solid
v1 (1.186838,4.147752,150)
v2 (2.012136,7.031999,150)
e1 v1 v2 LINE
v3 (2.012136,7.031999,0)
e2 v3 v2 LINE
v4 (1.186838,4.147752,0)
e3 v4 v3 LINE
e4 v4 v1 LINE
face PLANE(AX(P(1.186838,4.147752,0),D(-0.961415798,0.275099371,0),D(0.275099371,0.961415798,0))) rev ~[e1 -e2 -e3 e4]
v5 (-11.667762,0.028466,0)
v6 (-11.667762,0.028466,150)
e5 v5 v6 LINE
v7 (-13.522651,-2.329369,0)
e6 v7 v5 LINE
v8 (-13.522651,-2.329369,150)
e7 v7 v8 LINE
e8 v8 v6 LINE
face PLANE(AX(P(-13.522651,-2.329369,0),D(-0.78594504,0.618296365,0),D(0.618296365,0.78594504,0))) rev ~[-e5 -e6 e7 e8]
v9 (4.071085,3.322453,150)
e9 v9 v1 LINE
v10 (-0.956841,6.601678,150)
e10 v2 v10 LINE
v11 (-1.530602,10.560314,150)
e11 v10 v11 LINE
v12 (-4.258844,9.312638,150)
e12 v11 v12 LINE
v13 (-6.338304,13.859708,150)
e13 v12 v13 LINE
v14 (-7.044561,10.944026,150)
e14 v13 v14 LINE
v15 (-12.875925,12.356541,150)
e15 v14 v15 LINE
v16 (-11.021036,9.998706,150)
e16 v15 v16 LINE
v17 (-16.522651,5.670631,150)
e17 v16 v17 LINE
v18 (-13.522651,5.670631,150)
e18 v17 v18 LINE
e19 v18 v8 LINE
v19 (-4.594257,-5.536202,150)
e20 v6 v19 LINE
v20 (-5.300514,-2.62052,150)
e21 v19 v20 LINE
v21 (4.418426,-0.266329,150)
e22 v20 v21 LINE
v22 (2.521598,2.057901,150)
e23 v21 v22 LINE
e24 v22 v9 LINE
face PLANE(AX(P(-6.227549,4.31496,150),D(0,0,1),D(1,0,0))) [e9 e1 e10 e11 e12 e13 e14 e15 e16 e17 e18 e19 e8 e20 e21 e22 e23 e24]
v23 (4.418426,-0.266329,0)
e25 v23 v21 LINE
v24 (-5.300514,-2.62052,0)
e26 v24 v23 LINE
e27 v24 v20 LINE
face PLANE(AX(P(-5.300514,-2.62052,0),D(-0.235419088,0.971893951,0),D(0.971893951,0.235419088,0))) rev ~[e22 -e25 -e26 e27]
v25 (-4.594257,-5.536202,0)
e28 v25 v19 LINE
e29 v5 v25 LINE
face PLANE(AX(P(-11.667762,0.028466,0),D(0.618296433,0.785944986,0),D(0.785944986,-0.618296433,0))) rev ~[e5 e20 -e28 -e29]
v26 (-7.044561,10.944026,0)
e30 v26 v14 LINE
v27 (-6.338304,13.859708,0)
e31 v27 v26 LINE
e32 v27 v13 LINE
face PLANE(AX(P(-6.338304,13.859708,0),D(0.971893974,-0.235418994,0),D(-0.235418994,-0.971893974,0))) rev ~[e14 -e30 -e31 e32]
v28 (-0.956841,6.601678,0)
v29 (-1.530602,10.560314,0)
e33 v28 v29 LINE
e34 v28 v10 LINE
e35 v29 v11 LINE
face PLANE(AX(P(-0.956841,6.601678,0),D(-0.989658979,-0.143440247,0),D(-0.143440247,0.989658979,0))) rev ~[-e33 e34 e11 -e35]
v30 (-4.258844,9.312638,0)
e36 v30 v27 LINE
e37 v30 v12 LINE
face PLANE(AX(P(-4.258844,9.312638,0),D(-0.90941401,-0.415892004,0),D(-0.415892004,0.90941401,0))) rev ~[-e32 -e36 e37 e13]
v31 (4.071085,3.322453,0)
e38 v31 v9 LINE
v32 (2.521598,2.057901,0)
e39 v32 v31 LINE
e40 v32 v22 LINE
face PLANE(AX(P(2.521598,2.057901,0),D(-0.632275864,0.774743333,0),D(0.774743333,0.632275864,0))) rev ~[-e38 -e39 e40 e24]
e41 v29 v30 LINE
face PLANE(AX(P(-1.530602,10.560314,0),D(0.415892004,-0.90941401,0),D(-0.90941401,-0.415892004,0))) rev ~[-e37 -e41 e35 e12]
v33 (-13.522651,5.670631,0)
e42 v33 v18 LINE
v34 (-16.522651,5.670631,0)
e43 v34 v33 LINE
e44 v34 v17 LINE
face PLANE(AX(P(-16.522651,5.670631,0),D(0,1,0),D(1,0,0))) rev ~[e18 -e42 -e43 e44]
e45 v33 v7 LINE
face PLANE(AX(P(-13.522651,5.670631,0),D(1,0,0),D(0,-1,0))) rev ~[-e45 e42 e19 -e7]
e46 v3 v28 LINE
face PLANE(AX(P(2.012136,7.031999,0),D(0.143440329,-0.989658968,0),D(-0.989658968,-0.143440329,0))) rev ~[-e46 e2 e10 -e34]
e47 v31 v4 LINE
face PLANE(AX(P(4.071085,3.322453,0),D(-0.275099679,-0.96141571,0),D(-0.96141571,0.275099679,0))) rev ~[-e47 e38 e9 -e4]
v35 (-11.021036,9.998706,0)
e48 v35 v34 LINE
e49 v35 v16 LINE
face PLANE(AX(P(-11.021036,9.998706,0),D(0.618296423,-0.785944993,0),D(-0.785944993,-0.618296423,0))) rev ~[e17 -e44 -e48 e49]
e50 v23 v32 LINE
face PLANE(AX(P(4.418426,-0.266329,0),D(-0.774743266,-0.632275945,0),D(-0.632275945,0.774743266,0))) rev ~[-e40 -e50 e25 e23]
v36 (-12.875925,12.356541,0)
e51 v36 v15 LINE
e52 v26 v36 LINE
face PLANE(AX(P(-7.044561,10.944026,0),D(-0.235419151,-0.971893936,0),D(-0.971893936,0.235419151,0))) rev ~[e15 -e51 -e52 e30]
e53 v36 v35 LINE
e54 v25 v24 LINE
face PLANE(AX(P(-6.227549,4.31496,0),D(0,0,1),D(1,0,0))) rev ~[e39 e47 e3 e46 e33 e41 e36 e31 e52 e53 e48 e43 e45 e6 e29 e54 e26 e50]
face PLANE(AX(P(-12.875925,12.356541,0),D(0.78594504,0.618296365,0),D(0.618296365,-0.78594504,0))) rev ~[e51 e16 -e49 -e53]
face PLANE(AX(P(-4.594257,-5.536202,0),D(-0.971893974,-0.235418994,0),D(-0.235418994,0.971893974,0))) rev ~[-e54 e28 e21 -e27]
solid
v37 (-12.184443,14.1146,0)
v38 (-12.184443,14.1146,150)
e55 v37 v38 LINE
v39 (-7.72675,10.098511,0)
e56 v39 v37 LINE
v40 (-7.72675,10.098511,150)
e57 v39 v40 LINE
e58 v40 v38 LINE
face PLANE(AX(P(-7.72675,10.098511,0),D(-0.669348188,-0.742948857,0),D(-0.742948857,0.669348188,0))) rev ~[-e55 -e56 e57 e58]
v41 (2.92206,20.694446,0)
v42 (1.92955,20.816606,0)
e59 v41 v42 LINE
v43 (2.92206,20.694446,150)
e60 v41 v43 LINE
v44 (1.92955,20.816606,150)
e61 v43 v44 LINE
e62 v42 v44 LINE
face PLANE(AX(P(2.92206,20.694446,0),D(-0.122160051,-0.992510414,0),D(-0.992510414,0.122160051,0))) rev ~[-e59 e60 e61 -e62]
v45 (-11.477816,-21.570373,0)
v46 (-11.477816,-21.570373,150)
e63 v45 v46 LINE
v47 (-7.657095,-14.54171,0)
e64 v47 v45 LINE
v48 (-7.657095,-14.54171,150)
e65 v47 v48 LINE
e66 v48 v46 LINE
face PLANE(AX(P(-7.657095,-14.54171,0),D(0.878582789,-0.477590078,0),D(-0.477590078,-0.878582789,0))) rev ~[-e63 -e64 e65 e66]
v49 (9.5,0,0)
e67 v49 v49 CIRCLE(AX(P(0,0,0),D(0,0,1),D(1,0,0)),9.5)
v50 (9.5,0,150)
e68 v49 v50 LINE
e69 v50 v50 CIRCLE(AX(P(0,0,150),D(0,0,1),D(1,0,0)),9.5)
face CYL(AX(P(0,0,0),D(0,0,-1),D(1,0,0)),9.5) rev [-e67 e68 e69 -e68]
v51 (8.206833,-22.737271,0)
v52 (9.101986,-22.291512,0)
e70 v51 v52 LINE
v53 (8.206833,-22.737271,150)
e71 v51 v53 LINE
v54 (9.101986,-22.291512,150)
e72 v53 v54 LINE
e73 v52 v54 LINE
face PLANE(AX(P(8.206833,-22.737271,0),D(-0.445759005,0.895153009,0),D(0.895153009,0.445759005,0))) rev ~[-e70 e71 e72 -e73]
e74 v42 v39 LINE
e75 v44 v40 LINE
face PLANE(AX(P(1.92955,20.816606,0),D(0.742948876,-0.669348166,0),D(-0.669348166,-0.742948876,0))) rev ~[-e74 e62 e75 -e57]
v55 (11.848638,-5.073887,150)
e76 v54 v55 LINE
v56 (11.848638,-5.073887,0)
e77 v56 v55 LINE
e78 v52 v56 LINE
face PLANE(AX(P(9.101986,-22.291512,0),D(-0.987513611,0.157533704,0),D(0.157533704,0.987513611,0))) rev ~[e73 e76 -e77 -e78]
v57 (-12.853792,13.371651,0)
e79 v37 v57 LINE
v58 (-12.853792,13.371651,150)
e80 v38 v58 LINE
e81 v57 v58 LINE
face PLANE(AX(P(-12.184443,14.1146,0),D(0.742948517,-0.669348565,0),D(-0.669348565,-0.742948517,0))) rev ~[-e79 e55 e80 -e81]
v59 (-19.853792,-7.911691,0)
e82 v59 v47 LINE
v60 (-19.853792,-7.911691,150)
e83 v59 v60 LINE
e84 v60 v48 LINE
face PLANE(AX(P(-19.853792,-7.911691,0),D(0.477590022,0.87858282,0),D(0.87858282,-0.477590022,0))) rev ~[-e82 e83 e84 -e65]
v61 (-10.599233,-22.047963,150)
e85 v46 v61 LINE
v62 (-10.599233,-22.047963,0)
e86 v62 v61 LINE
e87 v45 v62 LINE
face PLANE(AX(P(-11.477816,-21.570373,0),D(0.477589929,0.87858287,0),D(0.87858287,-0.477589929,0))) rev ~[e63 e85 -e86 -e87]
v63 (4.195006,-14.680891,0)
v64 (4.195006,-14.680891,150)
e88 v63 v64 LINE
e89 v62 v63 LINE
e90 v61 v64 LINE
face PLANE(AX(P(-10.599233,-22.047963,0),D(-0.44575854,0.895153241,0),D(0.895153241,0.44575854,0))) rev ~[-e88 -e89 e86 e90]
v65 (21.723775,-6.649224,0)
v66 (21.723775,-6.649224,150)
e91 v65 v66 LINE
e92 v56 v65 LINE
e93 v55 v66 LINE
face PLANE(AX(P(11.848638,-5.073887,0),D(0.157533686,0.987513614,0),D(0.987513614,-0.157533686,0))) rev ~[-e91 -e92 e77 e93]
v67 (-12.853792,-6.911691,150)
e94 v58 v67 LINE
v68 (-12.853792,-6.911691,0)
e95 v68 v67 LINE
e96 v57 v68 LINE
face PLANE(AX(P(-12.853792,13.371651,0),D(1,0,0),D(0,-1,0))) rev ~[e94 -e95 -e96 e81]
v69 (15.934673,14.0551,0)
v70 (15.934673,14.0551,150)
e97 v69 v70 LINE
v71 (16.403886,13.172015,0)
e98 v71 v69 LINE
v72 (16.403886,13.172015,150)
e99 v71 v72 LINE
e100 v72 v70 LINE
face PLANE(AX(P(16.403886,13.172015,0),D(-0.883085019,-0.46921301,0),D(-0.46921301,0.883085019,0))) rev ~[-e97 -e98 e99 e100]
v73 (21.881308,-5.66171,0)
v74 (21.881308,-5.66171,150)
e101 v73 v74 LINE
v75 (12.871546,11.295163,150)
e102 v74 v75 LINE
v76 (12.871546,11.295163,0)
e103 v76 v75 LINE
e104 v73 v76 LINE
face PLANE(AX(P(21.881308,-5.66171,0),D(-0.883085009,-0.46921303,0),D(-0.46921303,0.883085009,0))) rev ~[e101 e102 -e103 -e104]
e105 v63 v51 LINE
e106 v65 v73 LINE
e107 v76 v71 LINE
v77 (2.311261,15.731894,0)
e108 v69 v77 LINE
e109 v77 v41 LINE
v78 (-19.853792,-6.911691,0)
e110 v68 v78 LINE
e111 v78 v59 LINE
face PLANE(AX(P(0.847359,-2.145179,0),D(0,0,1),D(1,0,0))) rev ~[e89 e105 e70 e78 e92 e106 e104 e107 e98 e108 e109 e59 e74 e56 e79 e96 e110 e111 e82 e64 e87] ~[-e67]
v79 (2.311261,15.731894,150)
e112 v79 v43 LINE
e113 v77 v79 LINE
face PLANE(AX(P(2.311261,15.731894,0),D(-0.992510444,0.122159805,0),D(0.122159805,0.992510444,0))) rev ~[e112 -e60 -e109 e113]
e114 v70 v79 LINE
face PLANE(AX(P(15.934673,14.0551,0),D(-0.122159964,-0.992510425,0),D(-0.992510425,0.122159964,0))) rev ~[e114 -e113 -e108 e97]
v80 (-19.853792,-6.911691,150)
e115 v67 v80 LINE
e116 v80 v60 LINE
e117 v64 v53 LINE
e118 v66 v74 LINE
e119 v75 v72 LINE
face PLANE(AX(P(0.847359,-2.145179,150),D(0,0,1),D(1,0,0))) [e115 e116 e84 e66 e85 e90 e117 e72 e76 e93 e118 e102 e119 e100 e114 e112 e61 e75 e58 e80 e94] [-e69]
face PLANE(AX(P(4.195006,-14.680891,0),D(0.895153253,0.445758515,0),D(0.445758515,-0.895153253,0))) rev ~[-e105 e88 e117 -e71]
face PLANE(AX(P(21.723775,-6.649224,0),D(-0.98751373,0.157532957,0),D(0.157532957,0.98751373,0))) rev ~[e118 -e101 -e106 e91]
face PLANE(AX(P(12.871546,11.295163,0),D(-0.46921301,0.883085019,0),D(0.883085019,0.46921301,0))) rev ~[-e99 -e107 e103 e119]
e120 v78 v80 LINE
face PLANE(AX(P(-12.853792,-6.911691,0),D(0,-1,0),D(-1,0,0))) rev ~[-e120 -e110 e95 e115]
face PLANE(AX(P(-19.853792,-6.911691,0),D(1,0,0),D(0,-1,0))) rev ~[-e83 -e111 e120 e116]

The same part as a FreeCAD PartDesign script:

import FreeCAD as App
import Part
import Sketcher
from FreeCAD import Vector
Q = App.Units.Quantity

doc = App.newDocument("Part")
params = doc.addObject("Spreadsheet::Sheet", "Params")
for row, (alias, value) in enumerate([
    ("sketch1_width", "3 mm"),
    ("sketch1_height", "8 mm"),
    ("sketch1_length", "2 mm"),
    ("sketch1_length2", "3 mm"),
    ("sketch1_length3", "4 mm"),
    ("pad1_length", "150 mm"),
    ("sketch2_diameter", "19 mm"),
    ("sketch2_width", "7 mm"),
    ("sketch2_height", "1 mm"),
    ("sketch2_length", "4 mm"),
    ("sketch2_length2", "1 mm"),
    ("pad2_length", "150 mm"),
], start=1):
    params.set(f"A{row}", alias)
    params.set(f"B{row}", "=" + value)
    params.setAlias(f"B{row}", alias)

body = doc.addObject("PartDesign::Body", "Body")

sketch1 = body.newObject("Sketcher::SketchObject", "Sketch")
sketch1.AttachmentSupport = (doc.getObject("XY_Plane"), [""])
sketch1.MapMode = "FlatFace"
sketch1.addGeometry([
    Part.LineSegment(Vector(2.521598, 2.057901, 0), Vector(4.071085, 3.322453, 0)),
    Part.LineSegment(Vector(4.071085, 3.322453, 0), Vector(1.186838, 4.147752, 0)),
    Part.LineSegment(Vector(1.186838, 4.147752, 0), Vector(2.012136, 7.031999, 0)),
    Part.LineSegment(Vector(2.012136, 7.031999, 0), Vector(-0.956841, 6.601678, 0)),
    Part.LineSegment(Vector(-0.956841, 6.601678, 0), Vector(-1.530602, 10.560314, 0)),
    Part.LineSegment(Vector(-1.530602, 10.560314, 0), Vector(-4.258844, 9.312638, 0)),
    Part.LineSegment(Vector(-4.258844, 9.312638, 0), Vector(-6.338304, 13.859708, 0)),
    Part.LineSegment(Vector(-6.338304, 13.859708, 0), Vector(-7.044561, 10.944026, 0)),
    Part.LineSegment(Vector(-7.044561, 10.944026, 0), Vector(-12.875925, 12.356541, 0)),
    Part.LineSegment(Vector(-12.875925, 12.356541, 0), Vector(-11.021036, 9.998706, 0)),
    Part.LineSegment(Vector(-11.021036, 9.998706, 0), Vector(-16.522651, 5.670631, 0)),
    Part.LineSegment(Vector(-16.522651, 5.670631, 0), Vector(-13.522651, 5.670631, 0)),
    Part.LineSegment(Vector(-13.522651, 5.670631, 0), Vector(-13.522651, -2.329369, 0)),
    Part.LineSegment(Vector(-13.522651, -2.329369, 0), Vector(-11.667762, 0.028466, 0)),
    Part.LineSegment(Vector(-11.667762, 0.028466, 0), Vector(-4.594257, -5.536202, 0)),
    Part.LineSegment(Vector(-4.594257, -5.536202, 0), Vector(-5.300514, -2.62052, 0)),
    Part.LineSegment(Vector(-5.300514, -2.62052, 0), Vector(4.418426, -0.266329, 0)),
    Part.LineSegment(Vector(4.418426, -0.266329, 0), Vector(2.521598, 2.057901, 0)),
], False)
sketch1.addConstraint([
    Sketcher.Constraint("Coincident", 0, 2, 1, 1),
    Sketcher.Constraint("Coincident", 1, 2, 2, 1),
    Sketcher.Constraint("Coincident", 2, 2, 3, 1),
    Sketcher.Constraint("Coincident", 3, 2, 4, 1),
    Sketcher.Constraint("Coincident", 4, 2, 5, 1),
    Sketcher.Constraint("Coincident", 5, 2, 6, 1),
    Sketcher.Constraint("Coincident", 6, 2, 7, 1),
    Sketcher.Constraint("Coincident", 7, 2, 8, 1),
    Sketcher.Constraint("Coincident", 8, 2, 9, 1),
    Sketcher.Constraint("Coincident", 9, 2, 10, 1),
    Sketcher.Constraint("Coincident", 10, 2, 11, 1),
    Sketcher.Constraint("Coincident", 11, 2, 12, 1),
    Sketcher.Constraint("Coincident", 12, 2, 13, 1),
    Sketcher.Constraint("Coincident", 13, 2, 14, 1),
    Sketcher.Constraint("Coincident", 14, 2, 15, 1),
    Sketcher.Constraint("Coincident", 15, 2, 16, 1),
    Sketcher.Constraint("Coincident", 16, 2, 17, 1),
    Sketcher.Constraint("Coincident", 17, 2, 0, 1),
    Sketcher.Constraint("Horizontal", 11),
    Sketcher.Constraint("Vertical", 12),
    Sketcher.Constraint("Perpendicular", 1, 2),
    Sketcher.Constraint("Perpendicular", 3, 4),
    Sketcher.Constraint("Perpendicular", 5, 6),
    Sketcher.Constraint("Perpendicular", 7, 8),
    Sketcher.Constraint("Perpendicular", 9, 10),
    Sketcher.Constraint("Perpendicular", 13, 14),
    Sketcher.Constraint("Perpendicular", 15, 16),
    Sketcher.Constraint("Perpendicular", 0, 17),
    Sketcher.Constraint("Equal", 1, 2),
    Sketcher.Constraint("Equal", 2, 3),
    Sketcher.Constraint("Equal", 3, 5),
    Sketcher.Constraint("Equal", 5, 7),
    Sketcher.Constraint("Equal", 7, 9),
    Sketcher.Constraint("Equal", 9, 13),
    Sketcher.Constraint("Equal", 13, 15),
    Sketcher.Constraint("Equal", 15, 17),
    Sketcher.Constraint("DistanceX", 11, 1, 11, 2, Q("3 mm")),
    Sketcher.Constraint("DistanceY", 12, 2, 12, 1, Q("8 mm")),
    Sketcher.Constraint("Distance", 0, Q("2 mm")),
    Sketcher.Constraint("Distance", 1, Q("3 mm")),
    Sketcher.Constraint("Distance", 4, Q("4 mm")),
    Sketcher.Constraint("Distance", 6, Q("5 mm")),
    Sketcher.Constraint("Distance", 8, Q("6 mm")),
    Sketcher.Constraint("Distance", 10, Q("7 mm")),
    Sketcher.Constraint("Distance", 14, Q("9 mm")),
    Sketcher.Constraint("Distance", 16, Q("10 mm")),
    Sketcher.Constraint("DistanceY", -1, 1, 2, 2, Q("7.031999 mm")),
    Sketcher.Constraint("DistanceY", 9, 2, 6, 2, Q("3.861002 mm")),
    Sketcher.Constraint("DistanceX", -1, 1, 17, 2, Q("2.521598 mm")),
    Sketcher.Constraint("DistanceY", -1, 1, 17, 2, Q("2.057901 mm")),
    Sketcher.Constraint("DistanceY", 0, 2, 1, 2, Q("0.825299 mm")),
    Sketcher.Constraint("DistanceX", 13, 2, 7, 2, Q("4.623201 mm")),
    Sketcher.Constraint("DistanceX", 3, 2, -1, 1, Q("0.956841 mm")),
    Sketcher.Constraint("DistanceX", 7, 2, -1, 1, Q("7.044561 mm")),
])
sketch1.setExpression("Constraints[36]", "Params.sketch1_width")
sketch1.setExpression("Constraints[37]", "Params.sketch1_height")
sketch1.setExpression("Constraints[38]", "Params.sketch1_length")
sketch1.setExpression("Constraints[39]", "Params.sketch1_length2")
sketch1.setExpression("Constraints[40]", "Params.sketch1_length3")
pad1 = body.newObject("PartDesign::Pad", "Pad")
pad1.Profile = sketch1
pad1.setExpression("Length", "Params.pad1_length")
body2 = doc.addObject("PartDesign::Body", "Body001")

sketch2 = body2.newObject("Sketcher::SketchObject", "Sketch001")
sketch2.AttachmentSupport = (doc.getObject("XY_Plane001"), [""])
sketch2.MapMode = "FlatFace"
sketch2.addGeometry([
    Part.LineSegment(Vector(12.871546, 11.295163, 0), Vector(16.403886, 13.172015, 0)),
    Part.LineSegment(Vector(16.403886, 13.172015, 0), Vector(15.934673, 14.0551, 0)),
    Part.LineSegment(Vector(15.934673, 14.0551, 0), Vector(2.311261, 15.731894, 0)),
    Part.LineSegment(Vector(2.311261, 15.731894, 0), Vector(2.92206, 20.694446, 0)),
    Part.LineSegment(Vector(2.92206, 20.694446, 0), Vector(1.92955, 20.816606, 0)),
    Part.LineSegment(Vector(1.92955, 20.816606, 0), Vector(-7.72675, 10.098511, 0)),
    Part.LineSegment(Vector(-7.72675, 10.098511, 0), Vector(-12.184443, 14.1146, 0)),
    Part.LineSegment(Vector(-12.184443, 14.1146, 0), Vector(-12.853792, 13.371651, 0)),
    Part.LineSegment(Vector(-12.853792, 13.371651, 0), Vector(-12.853792, -6.911691, 0)),
    Part.LineSegment(Vector(-12.853792, -6.911691, 0), Vector(-19.853792, -6.911691, 0)),
    Part.LineSegment(Vector(-19.853792, -6.911691, 0), Vector(-19.853792, -7.911691, 0)),
    Part.LineSegment(Vector(-19.853792, -7.911691, 0), Vector(-7.657095, -14.54171, 0)),
    Part.LineSegment(Vector(-7.657095, -14.54171, 0), Vector(-11.477816, -21.570373, 0)),
    Part.LineSegment(Vector(-11.477816, -21.570373, 0), Vector(-10.599233, -22.047963, 0)),
    Part.LineSegment(Vector(-10.599233, -22.047963, 0), Vector(4.195006, -14.680891, 0)),
    Part.LineSegment(Vector(4.195006, -14.680891, 0), Vector(8.206833, -22.737271, 0)),
    Part.LineSegment(Vector(8.206833, -22.737271, 0), Vector(9.101986, -22.291512, 0)),
    Part.LineSegment(Vector(9.101986, -22.291512, 0), Vector(11.848638, -5.073887, 0)),
    Part.LineSegment(Vector(11.848638, -5.073887, 0), Vector(21.723775, -6.649224, 0)),
    Part.LineSegment(Vector(21.723775, -6.649224, 0), Vector(21.881308, -5.66171, 0)),
    Part.LineSegment(Vector(21.881308, -5.66171, 0), Vector(12.871546, 11.295163, 0)),
    Part.Circle(Vector(0, 0, 0), Vector(0, 0, 1), 9.5),
], False)
sketch2.addConstraint([
    Sketcher.Constraint("Coincident", 0, 2, 1, 1),
    Sketcher.Constraint("Coincident", 1, 2, 2, 1),
    Sketcher.Constraint("Coincident", 2, 2, 3, 1),
    Sketcher.Constraint("Coincident", 3, 2, 4, 1),
    Sketcher.Constraint("Coincident", 4, 2, 5, 1),
    Sketcher.Constraint("Coincident", 5, 2, 6, 1),
    Sketcher.Constraint("Coincident", 6, 2, 7, 1),
    Sketcher.Constraint("Coincident", 7, 2, 8, 1),
    Sketcher.Constraint("Coincident", 8, 2, 9, 1),
    Sketcher.Constraint("Coincident", 9, 2, 10, 1),
    Sketcher.Constraint("Coincident", 10, 2, 11, 1),
    Sketcher.Constraint("Coincident", 11, 2, 12, 1),
    Sketcher.Constraint("Coincident", 12, 2, 13, 1),
    Sketcher.Constraint("Coincident", 13, 2, 14, 1),
    Sketcher.Constraint("Coincident", 14, 2, 15, 1),
    Sketcher.Constraint("Coincident", 15, 2, 16, 1),
    Sketcher.Constraint("Coincident", 16, 2, 17, 1),
    Sketcher.Constraint("Coincident", 17, 2, 18, 1),
    Sketcher.Constraint("Coincident", 18, 2, 19, 1),
    Sketcher.Constraint("Coincident", 19, 2, 20, 1),
    Sketcher.Constraint("Coincident", 20, 2, 0, 1),
    Sketcher.Constraint("Vertical", 8),
    Sketcher.Constraint("Horizontal", 9),
    Sketcher.Constraint("Vertical", 10),
    Sketcher.Constraint("Coincident", 21, 3, -1, 1),
    Sketcher.Constraint("Diameter", 21, Q("19 mm")),
    Sketcher.Constraint("DistanceX", 9, 2, 9, 1, Q("7 mm")),
    Sketcher.Constraint("DistanceY", 10, 2, 10, 1, Q("1 mm")),
    Sketcher.Constraint("Distance", 0, Q("4 mm")),
    Sketcher.Constraint("Distance", 1, Q("1 mm")),
    Sketcher.Constraint("Distance", 3, Q("5 mm")),
    Sketcher.Constraint("Distance", 4, Q("1 mm")),
    Sketcher.Constraint("Distance", 6, Q("6 mm")),
    Sketcher.Constraint("Distance", 7, Q("1.000001 mm")),
    Sketcher.Constraint("Distance", 12, Q("8.000001 mm")),
    Sketcher.Constraint("Distance", 13, Q("1 mm")),
    Sketcher.Constraint("Distance", 15, Q("9.000001 mm")),
    Sketcher.Constraint("Distance", 16, Q("1 mm")),
    Sketcher.Constraint("Distance", 18, Q("10.000001 mm")),
    Sketcher.Constraint("Distance", 19, Q("1 mm")),
    Sketcher.Constraint("DistanceY", -1, 1, 1, 2, Q("14.0551 mm")),
    Sketcher.Constraint("DistanceY", -1, 1, 6, 2, Q("14.1146 mm")),
    Sketcher.Constraint("DistanceX", 2, 2, 3, 2, Q("0.610799 mm")),
    Sketcher.Constraint("DistanceX", 5, 2, 4, 2, Q("9.6563 mm")),
    Sketcher.Constraint("DistanceY", 8, 2, 5, 2, Q("17.010202 mm")),
    Sketcher.Constraint("DistanceX", 11, 2, 14, 2, Q("11.852101 mm")),
    Sketcher.Constraint("DistanceX", 8, 2, 14, 2, Q("17.048798 mm")),
    Sketcher.Constraint("DistanceY", 14, 2, 8, 2, Q("7.7692 mm")),
    Sketcher.Constraint("Distance", 11, Q("13.882239 mm")),
    Sketcher.Constraint("Distance", 17, Q("17.435329 mm")),
    Sketcher.Constraint("Distance", 20, Q("19.201858 mm")),
    Sketcher.Constraint("DistanceY", 8, 2, 8, 1, Q("20.283342 mm")),
    Sketcher.Constraint("DistanceX", -1, 1, 2, 2, Q("2.311261 mm")),
    Sketcher.Constraint("DistanceX", -1, 1, 4, 2, Q("1.92955 mm")),
    Sketcher.Constraint("DistanceY", -1, 1, 5, 2, Q("10.098511 mm")),
    Sketcher.Constraint("DistanceY", 15, 2, -1, 1, Q("22.737271 mm")),
    Sketcher.Constraint("DistanceX", -1, 1, 19, 2, Q("21.881308 mm")),
    Sketcher.Constraint("DistanceY", 19, 2, -1, 1, Q("5.66171 mm")),
    Sketcher.Constraint("DistanceY", 0, 2, 2, 2, Q("2.559879 mm")),
    Sketcher.Constraint("DistanceX", 12, 2, 11, 2, Q("3.820721 mm")),
    Sketcher.Constraint("DistanceY", 13, 2, 12, 2, Q("0.47759 mm")),
    Sketcher.Constraint("DistanceY", 15, 2, 16, 2, Q("0.445759 mm")),
    Sketcher.Constraint("DistanceX", 14, 2, 17, 2, Q("7.653632 mm")),
    Sketcher.Constraint("DistanceX", 17, 2, 0, 2, Q("4.555248 mm")),
    Sketcher.Constraint("DistanceY", 18, 2, 0, 2, Q("19.821239 mm")),
])
sketch2.setExpression("Constraints[25]", "Params.sketch2_diameter")
sketch2.setExpression("Constraints[26]", "Params.sketch2_width")
sketch2.setExpression("Constraints[27]", "Params.sketch2_height")
sketch2.setExpression("Constraints[28]", "Params.sketch2_length")
sketch2.setExpression("Constraints[29]", "Params.sketch2_length2")
pad2 = body2.newObject("PartDesign::Pad", "Pad001")
pad2.Profile = sketch2
pad2.setExpression("Length", "Params.pad2_length")

doc.recompute()
